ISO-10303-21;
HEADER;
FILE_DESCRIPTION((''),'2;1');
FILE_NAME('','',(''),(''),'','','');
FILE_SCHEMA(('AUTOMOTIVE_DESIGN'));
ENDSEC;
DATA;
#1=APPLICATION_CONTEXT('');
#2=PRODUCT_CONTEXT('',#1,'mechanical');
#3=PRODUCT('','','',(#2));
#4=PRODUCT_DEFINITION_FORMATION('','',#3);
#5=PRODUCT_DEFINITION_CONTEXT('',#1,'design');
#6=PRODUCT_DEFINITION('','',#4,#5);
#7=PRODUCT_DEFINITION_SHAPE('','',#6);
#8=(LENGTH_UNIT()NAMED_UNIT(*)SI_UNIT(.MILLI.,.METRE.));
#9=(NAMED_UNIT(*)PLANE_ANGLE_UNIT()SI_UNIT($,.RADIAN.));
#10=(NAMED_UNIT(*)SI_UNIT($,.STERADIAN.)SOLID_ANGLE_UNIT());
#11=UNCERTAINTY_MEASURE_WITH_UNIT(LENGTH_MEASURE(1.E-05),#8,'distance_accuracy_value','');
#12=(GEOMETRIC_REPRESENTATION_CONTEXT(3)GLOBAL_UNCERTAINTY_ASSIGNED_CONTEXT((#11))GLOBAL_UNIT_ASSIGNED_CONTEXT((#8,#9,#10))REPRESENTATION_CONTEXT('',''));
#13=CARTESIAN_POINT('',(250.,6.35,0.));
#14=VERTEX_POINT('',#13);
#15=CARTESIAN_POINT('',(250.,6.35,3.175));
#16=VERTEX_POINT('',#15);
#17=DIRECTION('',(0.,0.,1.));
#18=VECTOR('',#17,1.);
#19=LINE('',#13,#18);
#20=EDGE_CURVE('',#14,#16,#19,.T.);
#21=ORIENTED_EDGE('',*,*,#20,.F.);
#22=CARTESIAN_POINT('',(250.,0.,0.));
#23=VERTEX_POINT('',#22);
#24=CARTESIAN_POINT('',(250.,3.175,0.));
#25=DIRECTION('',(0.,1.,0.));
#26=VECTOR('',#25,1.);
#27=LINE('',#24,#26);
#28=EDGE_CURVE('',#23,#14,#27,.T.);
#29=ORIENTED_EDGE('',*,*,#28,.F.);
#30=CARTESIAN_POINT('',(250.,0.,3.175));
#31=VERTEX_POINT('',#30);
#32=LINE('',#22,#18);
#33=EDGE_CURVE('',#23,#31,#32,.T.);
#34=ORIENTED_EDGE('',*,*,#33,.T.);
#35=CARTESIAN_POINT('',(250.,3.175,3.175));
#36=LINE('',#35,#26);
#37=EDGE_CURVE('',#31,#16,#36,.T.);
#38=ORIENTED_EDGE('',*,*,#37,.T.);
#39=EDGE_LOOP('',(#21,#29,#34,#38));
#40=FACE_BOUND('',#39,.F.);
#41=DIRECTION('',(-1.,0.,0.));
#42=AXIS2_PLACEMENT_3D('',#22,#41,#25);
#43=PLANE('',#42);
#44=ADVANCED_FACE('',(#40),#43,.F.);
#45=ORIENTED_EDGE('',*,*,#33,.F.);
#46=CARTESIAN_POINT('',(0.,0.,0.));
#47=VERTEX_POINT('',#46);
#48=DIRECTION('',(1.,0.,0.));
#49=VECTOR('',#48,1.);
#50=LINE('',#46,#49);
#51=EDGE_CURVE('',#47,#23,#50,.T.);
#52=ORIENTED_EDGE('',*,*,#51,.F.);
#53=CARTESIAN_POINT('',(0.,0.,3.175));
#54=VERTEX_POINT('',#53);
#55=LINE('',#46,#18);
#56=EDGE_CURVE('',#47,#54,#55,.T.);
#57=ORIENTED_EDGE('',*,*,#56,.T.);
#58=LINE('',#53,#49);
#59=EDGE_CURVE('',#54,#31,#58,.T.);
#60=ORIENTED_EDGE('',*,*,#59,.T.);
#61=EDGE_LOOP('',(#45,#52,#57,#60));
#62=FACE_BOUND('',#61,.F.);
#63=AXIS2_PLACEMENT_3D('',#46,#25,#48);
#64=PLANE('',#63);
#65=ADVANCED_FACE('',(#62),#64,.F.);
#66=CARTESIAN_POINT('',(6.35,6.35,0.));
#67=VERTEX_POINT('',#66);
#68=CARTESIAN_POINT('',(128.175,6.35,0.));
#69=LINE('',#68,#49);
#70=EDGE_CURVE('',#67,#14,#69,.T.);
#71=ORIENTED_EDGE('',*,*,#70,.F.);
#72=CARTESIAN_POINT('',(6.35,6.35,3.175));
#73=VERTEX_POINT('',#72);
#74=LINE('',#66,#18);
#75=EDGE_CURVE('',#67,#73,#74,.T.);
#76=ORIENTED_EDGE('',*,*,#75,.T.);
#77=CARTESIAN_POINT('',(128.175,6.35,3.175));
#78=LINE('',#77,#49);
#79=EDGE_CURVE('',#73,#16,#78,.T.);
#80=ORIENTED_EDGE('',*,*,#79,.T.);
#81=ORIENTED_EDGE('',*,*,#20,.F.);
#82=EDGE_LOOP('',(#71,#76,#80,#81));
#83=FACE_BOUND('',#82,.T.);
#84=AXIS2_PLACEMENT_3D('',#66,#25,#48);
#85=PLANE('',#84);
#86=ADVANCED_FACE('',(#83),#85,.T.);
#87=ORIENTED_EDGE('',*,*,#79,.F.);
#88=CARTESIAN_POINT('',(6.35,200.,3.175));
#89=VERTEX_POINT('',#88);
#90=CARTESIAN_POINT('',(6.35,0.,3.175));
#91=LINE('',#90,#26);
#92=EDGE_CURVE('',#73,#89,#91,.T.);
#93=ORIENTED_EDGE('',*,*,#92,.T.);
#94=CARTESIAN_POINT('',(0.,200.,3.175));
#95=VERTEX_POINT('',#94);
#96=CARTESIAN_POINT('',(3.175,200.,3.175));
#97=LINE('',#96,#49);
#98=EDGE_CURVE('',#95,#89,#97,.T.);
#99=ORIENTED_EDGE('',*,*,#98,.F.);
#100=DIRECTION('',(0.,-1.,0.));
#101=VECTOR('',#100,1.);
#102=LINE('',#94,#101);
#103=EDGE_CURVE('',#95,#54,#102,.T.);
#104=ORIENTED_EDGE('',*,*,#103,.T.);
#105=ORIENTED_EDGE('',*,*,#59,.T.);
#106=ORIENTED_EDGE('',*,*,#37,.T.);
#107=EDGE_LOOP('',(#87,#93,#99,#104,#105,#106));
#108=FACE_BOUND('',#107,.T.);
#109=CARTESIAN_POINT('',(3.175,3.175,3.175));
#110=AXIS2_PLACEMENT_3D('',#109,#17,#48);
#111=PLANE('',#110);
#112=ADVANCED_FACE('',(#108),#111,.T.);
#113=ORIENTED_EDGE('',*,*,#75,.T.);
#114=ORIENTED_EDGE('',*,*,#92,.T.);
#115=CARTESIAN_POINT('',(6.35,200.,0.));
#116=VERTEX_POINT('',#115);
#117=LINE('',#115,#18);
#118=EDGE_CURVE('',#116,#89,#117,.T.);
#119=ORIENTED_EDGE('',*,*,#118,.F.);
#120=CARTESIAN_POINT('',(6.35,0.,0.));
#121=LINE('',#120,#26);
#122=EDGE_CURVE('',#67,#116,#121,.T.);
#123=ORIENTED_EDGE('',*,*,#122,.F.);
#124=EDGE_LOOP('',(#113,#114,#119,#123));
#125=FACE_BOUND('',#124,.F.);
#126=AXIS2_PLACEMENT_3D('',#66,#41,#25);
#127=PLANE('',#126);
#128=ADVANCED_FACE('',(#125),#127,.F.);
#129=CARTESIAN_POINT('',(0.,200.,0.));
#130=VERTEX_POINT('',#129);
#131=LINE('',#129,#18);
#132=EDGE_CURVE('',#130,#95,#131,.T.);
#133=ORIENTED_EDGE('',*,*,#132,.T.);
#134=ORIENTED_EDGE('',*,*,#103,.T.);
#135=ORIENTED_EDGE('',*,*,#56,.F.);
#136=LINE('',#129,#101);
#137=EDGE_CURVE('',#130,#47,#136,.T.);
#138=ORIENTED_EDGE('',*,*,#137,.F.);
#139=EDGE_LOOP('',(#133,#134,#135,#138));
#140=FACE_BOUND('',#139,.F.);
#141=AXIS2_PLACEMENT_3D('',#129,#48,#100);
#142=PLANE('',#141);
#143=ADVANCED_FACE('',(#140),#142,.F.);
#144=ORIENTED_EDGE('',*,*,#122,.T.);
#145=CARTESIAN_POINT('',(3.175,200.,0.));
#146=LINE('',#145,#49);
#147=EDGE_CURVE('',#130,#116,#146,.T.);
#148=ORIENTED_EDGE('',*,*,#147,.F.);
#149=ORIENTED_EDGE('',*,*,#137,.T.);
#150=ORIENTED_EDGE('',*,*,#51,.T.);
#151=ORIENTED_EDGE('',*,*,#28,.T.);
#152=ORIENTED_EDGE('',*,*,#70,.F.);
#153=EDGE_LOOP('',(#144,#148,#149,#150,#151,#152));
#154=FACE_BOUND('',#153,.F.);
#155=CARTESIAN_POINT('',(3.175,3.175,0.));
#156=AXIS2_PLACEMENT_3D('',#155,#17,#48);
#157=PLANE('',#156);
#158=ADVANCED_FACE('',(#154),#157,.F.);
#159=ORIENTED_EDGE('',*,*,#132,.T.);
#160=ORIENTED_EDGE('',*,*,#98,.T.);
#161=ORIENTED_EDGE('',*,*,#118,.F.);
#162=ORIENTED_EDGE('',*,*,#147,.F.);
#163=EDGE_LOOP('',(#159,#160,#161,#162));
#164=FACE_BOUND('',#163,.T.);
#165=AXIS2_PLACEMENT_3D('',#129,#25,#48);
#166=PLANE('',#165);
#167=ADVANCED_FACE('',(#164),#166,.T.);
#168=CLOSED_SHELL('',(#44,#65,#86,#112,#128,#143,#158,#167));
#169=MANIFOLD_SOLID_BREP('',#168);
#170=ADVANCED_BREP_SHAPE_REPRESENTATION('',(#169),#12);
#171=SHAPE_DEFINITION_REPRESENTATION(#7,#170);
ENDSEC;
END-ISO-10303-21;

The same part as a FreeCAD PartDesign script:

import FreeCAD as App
import Part
import Sketcher
Q = App.Units.Quantity


def add_polygon(sketch, points):
    """Adds a closed chain of lines whose ends are joined by coincident constraints."""
    first, n = sketch.GeometryCount, len(points)
    for a, b in zip(points, points[1:] + points[:1]):
        sketch.addGeometry(Part.LineSegment(App.Vector(*a, 0), App.Vector(*b, 0)), False)
    for i in range(n):
        sketch.addConstraint(Sketcher.Constraint("Coincident", first + i, 2, first + (i + 1) % n, 1))

doc = App.newDocument("Part")
body = doc.addObject("PartDesign::Body", "Body")

sketch1 = body.newObject("Sketcher::SketchObject", "Sketch")
sketch1.AttachmentSupport = (doc.getObject("XY_Plane"), [""])
sketch1.MapMode = "FlatFace"
add_polygon(sketch1, [(0, 0), (250, 0), (250, 6.35), (6.35, 6.35), (6.35, 200), (0, 200)])
sketch1.addConstraint(Sketcher.Constraint("Horizontal", 0))
sketch1.addConstraint(Sketcher.Constraint("Vertical", 1))
sketch1.addConstraint(Sketcher.Constraint("Horizontal", 2))
sketch1.addConstraint(Sketcher.Constraint("Vertical", 3))
sketch1.addConstraint(Sketcher.Constraint("Horizontal", 4))
sketch1.addConstraint(Sketcher.Constraint("Vertical", 5))
sketch1.addConstraint(Sketcher.Constraint("Coincident", 5, 2, -1, 1))
sketch1.addConstraint(Sketcher.Constraint("Equal", 4, 1))
sketch1.addConstraint(Sketcher.Constraint("DistanceX", 0, 1, 0, 2, Q("250 mm")))
sketch1.addConstraint(Sketcher.Constraint("DistanceY", 5, 2, 5, 1, Q("200 mm")))
sketch1.addConstraint(Sketcher.Constraint("DistanceX", 2, 2, 2, 1, Q("243.65 mm")))
pad1 = body.newObject("PartDesign::Pad", "Pad")
pad1.Profile = sketch1
pad1.Length = 3.175

doc.recompute()
